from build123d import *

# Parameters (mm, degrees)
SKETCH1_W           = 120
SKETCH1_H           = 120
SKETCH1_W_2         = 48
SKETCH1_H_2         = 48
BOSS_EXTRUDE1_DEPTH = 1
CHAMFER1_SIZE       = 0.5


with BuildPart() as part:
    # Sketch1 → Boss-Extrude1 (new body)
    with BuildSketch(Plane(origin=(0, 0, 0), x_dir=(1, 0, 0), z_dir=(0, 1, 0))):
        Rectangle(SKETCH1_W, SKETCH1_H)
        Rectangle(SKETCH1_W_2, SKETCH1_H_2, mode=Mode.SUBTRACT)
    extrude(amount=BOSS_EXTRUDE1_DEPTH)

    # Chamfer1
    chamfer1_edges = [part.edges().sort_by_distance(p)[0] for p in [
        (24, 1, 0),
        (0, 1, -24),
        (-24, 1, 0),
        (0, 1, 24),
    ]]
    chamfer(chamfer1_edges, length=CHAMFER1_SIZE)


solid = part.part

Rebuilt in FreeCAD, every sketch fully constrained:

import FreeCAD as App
import Part
import Sketcher
Q = App.Units.Quantity


def edges_at(feature, points):
    """Names of the edges that pass closest to the given points."""
    edges = feature.Shape.Edges
    near = lambda p: min(range(len(edges)), key=lambda i: edges[i].distToShape(Part.Vertex(*p))[0])
    return sorted({f"Edge{near(p) + 1}" for p in points})


def add_polygon(sketch, points):
    """Adds a closed chain of lines whose ends are joined by coincident constraints."""
    first, n = sketch.GeometryCount, len(points)
    for a, b in zip(points, points[1:] + points[:1]):
        sketch.addGeometry(Part.LineSegment(App.Vector(*a, 0), App.Vector(*b, 0)), False)
    for i in range(n):
        sketch.addConstraint(Sketcher.Constraint("Coincident", first + i, 2, first + (i + 1) % n, 1))

doc = App.newDocument("Part")
body = doc.addObject("PartDesign::Body", "Body")

# Sketch on XZ plane
sketch1 = body.newObject("Sketcher::SketchObject", "Sketch")
sketch1.AttachmentSupport = (doc.getObject("XZ_Plane"), [""])
sketch1.MapMode = "FlatFace"
add_polygon(sketch1, [(-60, -60), (-60, 60), (60, 60), (60, -60)])  # lines 0-3
add_polygon(sketch1, [(24, 24), (-24, 24), (-24, -24), (24, -24)])  # lines 4-7
sketch1.addConstraint(Sketcher.Constraint("Vertical", 0))
sketch1.addConstraint(Sketcher.Constraint("Horizontal", 1))
sketch1.addConstraint(Sketcher.Constraint("Vertical", 2))
sketch1.addConstraint(Sketcher.Constraint("Horizontal", 3))
sketch1.addConstraint(Sketcher.Constraint("Horizontal", 4))
sketch1.addConstraint(Sketcher.Constraint("Vertical", 5))
sketch1.addConstraint(Sketcher.Constraint("Horizontal", 6))
sketch1.addConstraint(Sketcher.Constraint("Vertical", 7))
sketch1.addConstraint(Sketcher.Constraint("Symmetric", 0, 2, 2, 2, -1, 1))
sketch1.addConstraint(Sketcher.Constraint("Symmetric", 4, 2, 6, 2, -1, 1))
sketch1.addConstraint(Sketcher.Constraint("Equal", 3, 0))
sketch1.addConstraint(Sketcher.Constraint("Equal", 6, 5))
sketch1.addConstraint(Sketcher.Constraint("DistanceX", 1, 1, 1, 2, Q("120 mm")))
sketch1.addConstraint(Sketcher.Constraint("DistanceX", 4, 2, 4, 1, Q("48 mm")))
pad1 = body.newObject("PartDesign::Pad", "Pad")
pad1.Profile = sketch1
pad1.Length = 1
pad1.Reversed = True
doc.recompute()

chamfer = body.newObject("PartDesign::Chamfer", "Chamfer")
chamfer.Base = (pad1, edges_at(pad1, [
    (24, 1, 0),
    (0, 1, -24),
    (-24, 1, 0),
    (0, 1, 24),
]))
chamfer.Size = 0.5

doc.recompute()
